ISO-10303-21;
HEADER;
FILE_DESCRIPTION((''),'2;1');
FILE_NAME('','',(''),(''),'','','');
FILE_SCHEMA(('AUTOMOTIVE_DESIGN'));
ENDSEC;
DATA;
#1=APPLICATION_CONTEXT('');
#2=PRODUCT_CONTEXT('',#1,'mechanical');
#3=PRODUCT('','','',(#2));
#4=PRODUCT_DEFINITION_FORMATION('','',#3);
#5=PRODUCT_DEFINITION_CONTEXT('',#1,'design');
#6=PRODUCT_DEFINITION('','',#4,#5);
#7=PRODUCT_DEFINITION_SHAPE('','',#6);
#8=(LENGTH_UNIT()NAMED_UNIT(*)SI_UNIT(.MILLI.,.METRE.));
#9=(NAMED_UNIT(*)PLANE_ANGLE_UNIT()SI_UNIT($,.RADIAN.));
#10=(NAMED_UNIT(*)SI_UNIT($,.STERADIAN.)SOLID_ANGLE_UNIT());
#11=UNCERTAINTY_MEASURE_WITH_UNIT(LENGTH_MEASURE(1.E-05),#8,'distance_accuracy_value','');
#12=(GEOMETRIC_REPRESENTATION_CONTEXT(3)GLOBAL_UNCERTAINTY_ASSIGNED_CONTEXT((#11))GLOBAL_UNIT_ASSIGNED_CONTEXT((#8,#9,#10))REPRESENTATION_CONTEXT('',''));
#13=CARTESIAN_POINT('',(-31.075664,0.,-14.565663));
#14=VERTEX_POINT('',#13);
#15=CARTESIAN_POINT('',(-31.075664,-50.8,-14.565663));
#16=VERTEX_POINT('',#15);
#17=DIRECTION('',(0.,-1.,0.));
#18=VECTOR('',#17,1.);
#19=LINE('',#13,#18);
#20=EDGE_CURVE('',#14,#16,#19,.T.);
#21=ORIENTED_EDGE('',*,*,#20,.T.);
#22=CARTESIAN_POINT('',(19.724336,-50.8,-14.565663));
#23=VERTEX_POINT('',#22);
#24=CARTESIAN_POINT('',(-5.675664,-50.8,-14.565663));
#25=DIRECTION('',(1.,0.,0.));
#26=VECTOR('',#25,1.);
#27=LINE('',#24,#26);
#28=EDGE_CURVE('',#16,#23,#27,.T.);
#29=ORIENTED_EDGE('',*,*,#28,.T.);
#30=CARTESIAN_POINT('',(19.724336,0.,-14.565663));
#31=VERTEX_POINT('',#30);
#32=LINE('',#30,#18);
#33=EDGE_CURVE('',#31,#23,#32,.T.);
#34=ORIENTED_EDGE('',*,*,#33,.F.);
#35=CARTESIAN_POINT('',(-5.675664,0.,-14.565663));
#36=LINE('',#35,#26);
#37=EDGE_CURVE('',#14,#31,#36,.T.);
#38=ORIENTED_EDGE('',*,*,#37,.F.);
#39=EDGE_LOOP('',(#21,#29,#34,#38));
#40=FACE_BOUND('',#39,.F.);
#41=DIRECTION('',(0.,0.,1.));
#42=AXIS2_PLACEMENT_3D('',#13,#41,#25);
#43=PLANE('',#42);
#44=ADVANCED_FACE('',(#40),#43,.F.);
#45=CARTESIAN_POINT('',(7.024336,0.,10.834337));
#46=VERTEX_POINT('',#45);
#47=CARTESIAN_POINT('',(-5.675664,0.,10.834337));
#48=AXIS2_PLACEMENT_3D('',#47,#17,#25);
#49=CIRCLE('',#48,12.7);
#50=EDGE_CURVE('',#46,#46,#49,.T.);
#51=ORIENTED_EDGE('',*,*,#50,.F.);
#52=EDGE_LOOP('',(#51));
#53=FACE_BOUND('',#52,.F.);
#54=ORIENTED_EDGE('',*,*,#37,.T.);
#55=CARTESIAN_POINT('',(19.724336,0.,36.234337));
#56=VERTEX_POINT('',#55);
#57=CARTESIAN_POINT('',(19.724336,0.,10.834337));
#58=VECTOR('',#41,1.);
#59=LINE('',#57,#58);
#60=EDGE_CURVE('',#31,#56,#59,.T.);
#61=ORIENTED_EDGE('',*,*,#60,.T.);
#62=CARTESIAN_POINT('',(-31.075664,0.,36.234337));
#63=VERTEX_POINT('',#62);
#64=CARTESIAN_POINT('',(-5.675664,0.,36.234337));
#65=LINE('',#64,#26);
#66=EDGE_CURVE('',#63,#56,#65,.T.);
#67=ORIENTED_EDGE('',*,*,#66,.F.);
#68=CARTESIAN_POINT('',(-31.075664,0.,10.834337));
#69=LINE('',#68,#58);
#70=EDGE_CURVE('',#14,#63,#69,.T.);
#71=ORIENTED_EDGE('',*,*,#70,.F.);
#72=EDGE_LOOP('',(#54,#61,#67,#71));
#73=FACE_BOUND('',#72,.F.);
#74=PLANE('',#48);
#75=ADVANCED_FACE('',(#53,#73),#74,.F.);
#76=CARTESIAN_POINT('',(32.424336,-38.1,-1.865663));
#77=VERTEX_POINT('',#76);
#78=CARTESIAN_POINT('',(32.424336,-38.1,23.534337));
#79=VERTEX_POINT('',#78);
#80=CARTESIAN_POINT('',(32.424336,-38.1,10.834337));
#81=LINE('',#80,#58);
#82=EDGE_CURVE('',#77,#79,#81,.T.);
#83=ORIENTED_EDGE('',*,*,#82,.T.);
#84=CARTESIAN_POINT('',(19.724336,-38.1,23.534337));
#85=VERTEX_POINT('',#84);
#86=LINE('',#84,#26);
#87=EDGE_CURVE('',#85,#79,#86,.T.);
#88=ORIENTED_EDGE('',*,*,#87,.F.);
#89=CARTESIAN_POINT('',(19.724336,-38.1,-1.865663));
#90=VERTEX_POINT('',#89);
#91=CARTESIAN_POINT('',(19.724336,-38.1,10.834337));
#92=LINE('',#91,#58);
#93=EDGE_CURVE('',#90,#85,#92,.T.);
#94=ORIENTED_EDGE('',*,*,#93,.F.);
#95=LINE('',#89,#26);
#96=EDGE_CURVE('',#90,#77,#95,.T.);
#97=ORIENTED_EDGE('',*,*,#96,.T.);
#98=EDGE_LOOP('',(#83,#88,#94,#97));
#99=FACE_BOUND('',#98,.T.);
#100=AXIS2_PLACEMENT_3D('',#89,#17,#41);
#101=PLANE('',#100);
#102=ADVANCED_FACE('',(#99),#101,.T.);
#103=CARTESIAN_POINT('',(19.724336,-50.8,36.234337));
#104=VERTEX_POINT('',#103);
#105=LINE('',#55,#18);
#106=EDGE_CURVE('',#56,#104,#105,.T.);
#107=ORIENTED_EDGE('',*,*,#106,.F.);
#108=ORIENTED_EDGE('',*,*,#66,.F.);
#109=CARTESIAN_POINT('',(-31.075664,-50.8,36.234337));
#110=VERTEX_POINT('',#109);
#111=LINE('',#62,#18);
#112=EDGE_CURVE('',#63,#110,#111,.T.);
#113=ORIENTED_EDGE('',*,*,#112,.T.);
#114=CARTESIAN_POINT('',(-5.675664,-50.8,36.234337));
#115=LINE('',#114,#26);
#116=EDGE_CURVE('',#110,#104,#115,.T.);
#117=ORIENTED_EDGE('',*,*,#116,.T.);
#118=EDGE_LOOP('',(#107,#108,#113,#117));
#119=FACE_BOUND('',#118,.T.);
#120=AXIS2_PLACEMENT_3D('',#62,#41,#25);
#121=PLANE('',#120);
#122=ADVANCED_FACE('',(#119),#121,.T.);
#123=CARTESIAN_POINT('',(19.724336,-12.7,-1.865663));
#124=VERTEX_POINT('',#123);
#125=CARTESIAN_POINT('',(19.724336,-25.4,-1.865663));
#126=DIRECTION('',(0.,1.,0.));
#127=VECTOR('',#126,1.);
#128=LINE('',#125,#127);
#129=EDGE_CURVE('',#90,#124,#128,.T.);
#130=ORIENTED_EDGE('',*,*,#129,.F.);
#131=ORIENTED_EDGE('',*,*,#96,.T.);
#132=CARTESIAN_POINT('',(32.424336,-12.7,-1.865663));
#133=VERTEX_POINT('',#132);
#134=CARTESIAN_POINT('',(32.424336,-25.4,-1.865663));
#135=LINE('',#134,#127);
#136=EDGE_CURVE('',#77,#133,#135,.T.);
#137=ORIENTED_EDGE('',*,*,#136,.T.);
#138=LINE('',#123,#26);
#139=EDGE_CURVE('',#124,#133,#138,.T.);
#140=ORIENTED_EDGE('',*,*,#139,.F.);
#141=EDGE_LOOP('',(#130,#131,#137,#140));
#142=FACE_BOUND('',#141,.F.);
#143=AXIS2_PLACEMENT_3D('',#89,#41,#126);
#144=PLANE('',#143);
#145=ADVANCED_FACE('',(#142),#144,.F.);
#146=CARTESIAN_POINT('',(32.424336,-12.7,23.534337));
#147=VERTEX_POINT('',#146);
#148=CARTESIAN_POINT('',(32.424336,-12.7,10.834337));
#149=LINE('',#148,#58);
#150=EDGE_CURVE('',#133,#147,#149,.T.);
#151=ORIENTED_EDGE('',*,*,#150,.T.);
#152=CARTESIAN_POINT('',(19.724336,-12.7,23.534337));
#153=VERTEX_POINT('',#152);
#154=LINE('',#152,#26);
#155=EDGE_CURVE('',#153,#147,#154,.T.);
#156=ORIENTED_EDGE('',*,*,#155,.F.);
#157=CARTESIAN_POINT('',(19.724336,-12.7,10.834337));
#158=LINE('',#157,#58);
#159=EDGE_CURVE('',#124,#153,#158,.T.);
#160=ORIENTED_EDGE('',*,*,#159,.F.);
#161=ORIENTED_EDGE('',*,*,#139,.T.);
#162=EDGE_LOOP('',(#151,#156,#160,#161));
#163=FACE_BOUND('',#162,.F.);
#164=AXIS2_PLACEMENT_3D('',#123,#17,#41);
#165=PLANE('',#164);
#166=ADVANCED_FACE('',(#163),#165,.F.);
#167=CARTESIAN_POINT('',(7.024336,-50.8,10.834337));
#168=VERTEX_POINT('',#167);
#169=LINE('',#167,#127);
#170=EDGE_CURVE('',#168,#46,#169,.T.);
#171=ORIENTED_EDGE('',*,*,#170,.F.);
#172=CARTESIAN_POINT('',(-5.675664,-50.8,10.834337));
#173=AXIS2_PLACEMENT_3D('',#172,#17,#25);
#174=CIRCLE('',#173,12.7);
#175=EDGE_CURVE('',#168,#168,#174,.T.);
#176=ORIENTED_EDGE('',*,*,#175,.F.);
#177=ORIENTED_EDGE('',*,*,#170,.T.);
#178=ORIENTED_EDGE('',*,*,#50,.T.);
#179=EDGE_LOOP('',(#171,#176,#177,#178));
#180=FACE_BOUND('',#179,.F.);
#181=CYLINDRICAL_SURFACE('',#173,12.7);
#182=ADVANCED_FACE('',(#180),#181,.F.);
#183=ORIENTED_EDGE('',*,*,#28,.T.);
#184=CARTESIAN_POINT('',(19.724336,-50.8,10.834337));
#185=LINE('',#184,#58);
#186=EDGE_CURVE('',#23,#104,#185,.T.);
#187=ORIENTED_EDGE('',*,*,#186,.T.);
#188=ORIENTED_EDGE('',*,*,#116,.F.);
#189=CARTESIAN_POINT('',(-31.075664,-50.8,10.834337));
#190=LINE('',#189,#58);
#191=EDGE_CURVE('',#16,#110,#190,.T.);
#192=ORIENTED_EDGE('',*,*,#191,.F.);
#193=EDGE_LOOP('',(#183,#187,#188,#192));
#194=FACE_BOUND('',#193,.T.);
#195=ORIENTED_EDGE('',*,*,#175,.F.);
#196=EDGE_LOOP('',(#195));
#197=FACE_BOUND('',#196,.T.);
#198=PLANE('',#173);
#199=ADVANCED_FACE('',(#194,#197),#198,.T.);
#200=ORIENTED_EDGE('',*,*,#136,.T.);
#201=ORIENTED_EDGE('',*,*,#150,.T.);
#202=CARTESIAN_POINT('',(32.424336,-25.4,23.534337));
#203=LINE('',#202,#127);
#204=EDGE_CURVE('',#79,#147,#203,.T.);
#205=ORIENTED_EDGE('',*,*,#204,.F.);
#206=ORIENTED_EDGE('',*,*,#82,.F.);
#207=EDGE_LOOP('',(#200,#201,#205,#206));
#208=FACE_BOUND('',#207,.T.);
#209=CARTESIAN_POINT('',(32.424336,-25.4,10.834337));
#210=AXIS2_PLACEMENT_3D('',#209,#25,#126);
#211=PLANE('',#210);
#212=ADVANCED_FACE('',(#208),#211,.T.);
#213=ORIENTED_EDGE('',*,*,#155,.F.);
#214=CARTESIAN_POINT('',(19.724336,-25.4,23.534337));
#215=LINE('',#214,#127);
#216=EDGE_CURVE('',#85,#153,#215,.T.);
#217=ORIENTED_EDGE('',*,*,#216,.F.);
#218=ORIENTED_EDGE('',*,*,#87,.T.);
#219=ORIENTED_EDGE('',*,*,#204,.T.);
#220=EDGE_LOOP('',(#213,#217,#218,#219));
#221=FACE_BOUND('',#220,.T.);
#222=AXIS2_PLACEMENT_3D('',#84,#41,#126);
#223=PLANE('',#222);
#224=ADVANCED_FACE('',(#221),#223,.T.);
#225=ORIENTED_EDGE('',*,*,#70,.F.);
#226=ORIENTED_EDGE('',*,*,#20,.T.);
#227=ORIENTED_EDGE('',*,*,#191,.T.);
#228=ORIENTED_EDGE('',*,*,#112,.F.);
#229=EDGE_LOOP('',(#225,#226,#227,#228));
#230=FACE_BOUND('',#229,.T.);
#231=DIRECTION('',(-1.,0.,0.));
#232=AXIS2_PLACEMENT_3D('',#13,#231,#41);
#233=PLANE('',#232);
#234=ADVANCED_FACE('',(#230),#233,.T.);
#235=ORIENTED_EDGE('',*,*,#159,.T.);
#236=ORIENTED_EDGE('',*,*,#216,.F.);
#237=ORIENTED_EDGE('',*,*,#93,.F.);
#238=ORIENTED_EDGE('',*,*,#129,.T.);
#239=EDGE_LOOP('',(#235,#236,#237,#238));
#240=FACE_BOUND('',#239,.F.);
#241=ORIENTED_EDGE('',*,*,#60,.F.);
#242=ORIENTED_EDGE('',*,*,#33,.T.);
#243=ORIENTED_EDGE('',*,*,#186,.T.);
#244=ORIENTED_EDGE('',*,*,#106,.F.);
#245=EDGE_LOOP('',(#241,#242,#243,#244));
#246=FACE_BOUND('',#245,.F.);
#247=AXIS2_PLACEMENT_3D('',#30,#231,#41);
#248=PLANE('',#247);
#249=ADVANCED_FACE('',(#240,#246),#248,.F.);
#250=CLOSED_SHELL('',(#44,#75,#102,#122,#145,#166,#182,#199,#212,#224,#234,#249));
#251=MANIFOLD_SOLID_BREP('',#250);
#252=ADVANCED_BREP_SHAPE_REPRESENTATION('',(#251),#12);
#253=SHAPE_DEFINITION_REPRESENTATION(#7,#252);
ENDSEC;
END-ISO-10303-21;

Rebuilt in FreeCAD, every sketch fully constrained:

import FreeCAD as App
import Part
import Sketcher
from FreeCAD import Vector
Q = App.Units.Quantity

doc = App.newDocument("Part")
body = doc.addObject("PartDesign::Body", "Body")

# Sketch on XZ plane
sketch1 = doc.addObject("Sketcher::SketchObject", "Sketch")
body.addObject(sketch1)
sketch1.AttachmentSupport = (doc.XZ_Plane, [""])
sketch1.MapMode = "FlatFace"
sketch1.addGeometry(Part.LineSegment(Vector(-31, 36, 0), Vector(-31, -15, 0)), False)
sketch1.addGeometry(Part.LineSegment(Vector(-31, -15, 0), Vector(20, -15, 0)), False)
sketch1.addGeometry(Part.LineSegment(Vector(20, -15, 0), Vector(20, 36, 0)), False)
sketch1.addGeometry(Part.LineSegment(Vector(20, 36, 0), Vector(-31, 36, 0)), False)
sketch1.addConstraint(Sketcher.Constraint("Coincident", 0, 2, 1, 1))
sketch1.addConstraint(Sketcher.Constraint("Coincident", 1, 2, 2, 1))
sketch1.addConstraint(Sketcher.Constraint("Coincident", 2, 2, 3, 1))
sketch1.addConstraint(Sketcher.Constraint("Coincident", 3, 2, 0, 1))
sketch1.addConstraint(Sketcher.Constraint("Vertical", 0))
sketch1.addConstraint(Sketcher.Constraint("Horizontal", 1))
sketch1.addConstraint(Sketcher.Constraint("Vertical", 2))
sketch1.addConstraint(Sketcher.Constraint("Horizontal", 3))
sketch1.addConstraint(Sketcher.Constraint("Equal", 3, 0))
sketch1.addConstraint(Sketcher.Constraint("DistanceX", 1, 1, 1, 2, Q("2 in")))
sketch1.addConstraint(Sketcher.Constraint("DistanceX", 0, 2, -1, 1, 31.075664))
sketch1.addConstraint(Sketcher.Constraint("DistanceY", 0, 2, -1, 1, 14.565663))
pad1 = doc.addObject("PartDesign::Pad", "Pad")
body.addObject(pad1)
pad1.Profile = sketch1
pad1.Length = Q("2 in")

# Sketch on XZ plane
sketch2 = doc.addObject("Sketcher::SketchObject", "Sketch001")
body.addObject(sketch2)
sketch2.AttachmentSupport = (doc.XZ_Plane, [""])
sketch2.MapMode = "FlatFace"
sketch2.AttachmentOffset = App.Placement(Vector(0, 0, 2 * 25.4), App.Rotation())
sketch2.addGeometry(Part.Circle(Vector(-6, 11, 0), Vector(0, 0, 1), 13), False)
sketch2.addConstraint(Sketcher.Constraint("Diameter", 0, Q("1 in")))
sketch2.addConstraint(Sketcher.Constraint("DistanceX", 0, 3, -1, 1, 5.675664))
sketch2.addConstraint(Sketcher.Constraint("DistanceY", -1, 1, 0, 3, 10.834337))
pocket1 = doc.addObject("PartDesign::Pocket", "Pocket")
body.addObject(pocket1)
pocket1.Profile = sketch2
pocket1.Length = Q("2 in")

# Sketch on YZ plane
sketch3 = doc.addObject("Sketcher::SketchObject", "Sketch002")
body.addObject(sketch3)
sketch3.AttachmentSupport = (doc.YZ_Plane, [""])
sketch3.MapMode = "FlatFace"
sketch3.AttachmentOffset = App.Placement(Vector(0, 0, 19.724336), App.Rotation())
sketch3.addGeometry(Part.LineSegment(Vector(-38, 24, 0), Vector(-38, -2, 0)), False)
sketch3.addGeometry(Part.LineSegment(Vector(-38, -2, 0), Vector(-13, -2, 0)), False)
sketch3.addGeometry(Part.LineSegment(Vector(-13, -2, 0), Vector(-13, 24, 0)), False)
sketch3.addGeometry(Part.LineSegment(Vector(-13, 24, 0), Vector(-38, 24, 0)), False)
sketch3.addConstraint(Sketcher.Constraint("Coincident", 0, 2, 1, 1))
sketch3.addConstraint(Sketcher.Constraint("Coincident", 1, 2, 2, 1))
sketch3.addConstraint(Sketcher.Constraint("Coincident", 2, 2, 3, 1))
sketch3.addConstraint(Sketcher.Constraint("Coincident", 3, 2, 0, 1))
sketch3.addConstraint(Sketcher.Constraint("Vertical", 0))
sketch3.addConstraint(Sketcher.Constraint("Horizontal", 1))
sketch3.addConstraint(Sketcher.Constraint("Vertical", 2))
sketch3.addConstraint(Sketcher.Constraint("Horizontal", 3))
sketch3.addConstraint(Sketcher.Constraint("Equal", 3, 0))
sketch3.addConstraint(Sketcher.Constraint("DistanceX", 1, 1, 1, 2, Q("1 in")))
sketch3.addConstraint(Sketcher.Constraint("DistanceX", 0, 2, -1, 1, Q("1.5 in")))
sketch3.addConstraint(Sketcher.Constraint("DistanceY", 0, 2, -1, 1, 1.865663))
pad2 = doc.addObject("PartDesign::Pad", "Pad001")
body.addObject(pad2)
pad2.Profile = sketch3
pad2.Length = Q("0.5 in")

doc.recompute()
